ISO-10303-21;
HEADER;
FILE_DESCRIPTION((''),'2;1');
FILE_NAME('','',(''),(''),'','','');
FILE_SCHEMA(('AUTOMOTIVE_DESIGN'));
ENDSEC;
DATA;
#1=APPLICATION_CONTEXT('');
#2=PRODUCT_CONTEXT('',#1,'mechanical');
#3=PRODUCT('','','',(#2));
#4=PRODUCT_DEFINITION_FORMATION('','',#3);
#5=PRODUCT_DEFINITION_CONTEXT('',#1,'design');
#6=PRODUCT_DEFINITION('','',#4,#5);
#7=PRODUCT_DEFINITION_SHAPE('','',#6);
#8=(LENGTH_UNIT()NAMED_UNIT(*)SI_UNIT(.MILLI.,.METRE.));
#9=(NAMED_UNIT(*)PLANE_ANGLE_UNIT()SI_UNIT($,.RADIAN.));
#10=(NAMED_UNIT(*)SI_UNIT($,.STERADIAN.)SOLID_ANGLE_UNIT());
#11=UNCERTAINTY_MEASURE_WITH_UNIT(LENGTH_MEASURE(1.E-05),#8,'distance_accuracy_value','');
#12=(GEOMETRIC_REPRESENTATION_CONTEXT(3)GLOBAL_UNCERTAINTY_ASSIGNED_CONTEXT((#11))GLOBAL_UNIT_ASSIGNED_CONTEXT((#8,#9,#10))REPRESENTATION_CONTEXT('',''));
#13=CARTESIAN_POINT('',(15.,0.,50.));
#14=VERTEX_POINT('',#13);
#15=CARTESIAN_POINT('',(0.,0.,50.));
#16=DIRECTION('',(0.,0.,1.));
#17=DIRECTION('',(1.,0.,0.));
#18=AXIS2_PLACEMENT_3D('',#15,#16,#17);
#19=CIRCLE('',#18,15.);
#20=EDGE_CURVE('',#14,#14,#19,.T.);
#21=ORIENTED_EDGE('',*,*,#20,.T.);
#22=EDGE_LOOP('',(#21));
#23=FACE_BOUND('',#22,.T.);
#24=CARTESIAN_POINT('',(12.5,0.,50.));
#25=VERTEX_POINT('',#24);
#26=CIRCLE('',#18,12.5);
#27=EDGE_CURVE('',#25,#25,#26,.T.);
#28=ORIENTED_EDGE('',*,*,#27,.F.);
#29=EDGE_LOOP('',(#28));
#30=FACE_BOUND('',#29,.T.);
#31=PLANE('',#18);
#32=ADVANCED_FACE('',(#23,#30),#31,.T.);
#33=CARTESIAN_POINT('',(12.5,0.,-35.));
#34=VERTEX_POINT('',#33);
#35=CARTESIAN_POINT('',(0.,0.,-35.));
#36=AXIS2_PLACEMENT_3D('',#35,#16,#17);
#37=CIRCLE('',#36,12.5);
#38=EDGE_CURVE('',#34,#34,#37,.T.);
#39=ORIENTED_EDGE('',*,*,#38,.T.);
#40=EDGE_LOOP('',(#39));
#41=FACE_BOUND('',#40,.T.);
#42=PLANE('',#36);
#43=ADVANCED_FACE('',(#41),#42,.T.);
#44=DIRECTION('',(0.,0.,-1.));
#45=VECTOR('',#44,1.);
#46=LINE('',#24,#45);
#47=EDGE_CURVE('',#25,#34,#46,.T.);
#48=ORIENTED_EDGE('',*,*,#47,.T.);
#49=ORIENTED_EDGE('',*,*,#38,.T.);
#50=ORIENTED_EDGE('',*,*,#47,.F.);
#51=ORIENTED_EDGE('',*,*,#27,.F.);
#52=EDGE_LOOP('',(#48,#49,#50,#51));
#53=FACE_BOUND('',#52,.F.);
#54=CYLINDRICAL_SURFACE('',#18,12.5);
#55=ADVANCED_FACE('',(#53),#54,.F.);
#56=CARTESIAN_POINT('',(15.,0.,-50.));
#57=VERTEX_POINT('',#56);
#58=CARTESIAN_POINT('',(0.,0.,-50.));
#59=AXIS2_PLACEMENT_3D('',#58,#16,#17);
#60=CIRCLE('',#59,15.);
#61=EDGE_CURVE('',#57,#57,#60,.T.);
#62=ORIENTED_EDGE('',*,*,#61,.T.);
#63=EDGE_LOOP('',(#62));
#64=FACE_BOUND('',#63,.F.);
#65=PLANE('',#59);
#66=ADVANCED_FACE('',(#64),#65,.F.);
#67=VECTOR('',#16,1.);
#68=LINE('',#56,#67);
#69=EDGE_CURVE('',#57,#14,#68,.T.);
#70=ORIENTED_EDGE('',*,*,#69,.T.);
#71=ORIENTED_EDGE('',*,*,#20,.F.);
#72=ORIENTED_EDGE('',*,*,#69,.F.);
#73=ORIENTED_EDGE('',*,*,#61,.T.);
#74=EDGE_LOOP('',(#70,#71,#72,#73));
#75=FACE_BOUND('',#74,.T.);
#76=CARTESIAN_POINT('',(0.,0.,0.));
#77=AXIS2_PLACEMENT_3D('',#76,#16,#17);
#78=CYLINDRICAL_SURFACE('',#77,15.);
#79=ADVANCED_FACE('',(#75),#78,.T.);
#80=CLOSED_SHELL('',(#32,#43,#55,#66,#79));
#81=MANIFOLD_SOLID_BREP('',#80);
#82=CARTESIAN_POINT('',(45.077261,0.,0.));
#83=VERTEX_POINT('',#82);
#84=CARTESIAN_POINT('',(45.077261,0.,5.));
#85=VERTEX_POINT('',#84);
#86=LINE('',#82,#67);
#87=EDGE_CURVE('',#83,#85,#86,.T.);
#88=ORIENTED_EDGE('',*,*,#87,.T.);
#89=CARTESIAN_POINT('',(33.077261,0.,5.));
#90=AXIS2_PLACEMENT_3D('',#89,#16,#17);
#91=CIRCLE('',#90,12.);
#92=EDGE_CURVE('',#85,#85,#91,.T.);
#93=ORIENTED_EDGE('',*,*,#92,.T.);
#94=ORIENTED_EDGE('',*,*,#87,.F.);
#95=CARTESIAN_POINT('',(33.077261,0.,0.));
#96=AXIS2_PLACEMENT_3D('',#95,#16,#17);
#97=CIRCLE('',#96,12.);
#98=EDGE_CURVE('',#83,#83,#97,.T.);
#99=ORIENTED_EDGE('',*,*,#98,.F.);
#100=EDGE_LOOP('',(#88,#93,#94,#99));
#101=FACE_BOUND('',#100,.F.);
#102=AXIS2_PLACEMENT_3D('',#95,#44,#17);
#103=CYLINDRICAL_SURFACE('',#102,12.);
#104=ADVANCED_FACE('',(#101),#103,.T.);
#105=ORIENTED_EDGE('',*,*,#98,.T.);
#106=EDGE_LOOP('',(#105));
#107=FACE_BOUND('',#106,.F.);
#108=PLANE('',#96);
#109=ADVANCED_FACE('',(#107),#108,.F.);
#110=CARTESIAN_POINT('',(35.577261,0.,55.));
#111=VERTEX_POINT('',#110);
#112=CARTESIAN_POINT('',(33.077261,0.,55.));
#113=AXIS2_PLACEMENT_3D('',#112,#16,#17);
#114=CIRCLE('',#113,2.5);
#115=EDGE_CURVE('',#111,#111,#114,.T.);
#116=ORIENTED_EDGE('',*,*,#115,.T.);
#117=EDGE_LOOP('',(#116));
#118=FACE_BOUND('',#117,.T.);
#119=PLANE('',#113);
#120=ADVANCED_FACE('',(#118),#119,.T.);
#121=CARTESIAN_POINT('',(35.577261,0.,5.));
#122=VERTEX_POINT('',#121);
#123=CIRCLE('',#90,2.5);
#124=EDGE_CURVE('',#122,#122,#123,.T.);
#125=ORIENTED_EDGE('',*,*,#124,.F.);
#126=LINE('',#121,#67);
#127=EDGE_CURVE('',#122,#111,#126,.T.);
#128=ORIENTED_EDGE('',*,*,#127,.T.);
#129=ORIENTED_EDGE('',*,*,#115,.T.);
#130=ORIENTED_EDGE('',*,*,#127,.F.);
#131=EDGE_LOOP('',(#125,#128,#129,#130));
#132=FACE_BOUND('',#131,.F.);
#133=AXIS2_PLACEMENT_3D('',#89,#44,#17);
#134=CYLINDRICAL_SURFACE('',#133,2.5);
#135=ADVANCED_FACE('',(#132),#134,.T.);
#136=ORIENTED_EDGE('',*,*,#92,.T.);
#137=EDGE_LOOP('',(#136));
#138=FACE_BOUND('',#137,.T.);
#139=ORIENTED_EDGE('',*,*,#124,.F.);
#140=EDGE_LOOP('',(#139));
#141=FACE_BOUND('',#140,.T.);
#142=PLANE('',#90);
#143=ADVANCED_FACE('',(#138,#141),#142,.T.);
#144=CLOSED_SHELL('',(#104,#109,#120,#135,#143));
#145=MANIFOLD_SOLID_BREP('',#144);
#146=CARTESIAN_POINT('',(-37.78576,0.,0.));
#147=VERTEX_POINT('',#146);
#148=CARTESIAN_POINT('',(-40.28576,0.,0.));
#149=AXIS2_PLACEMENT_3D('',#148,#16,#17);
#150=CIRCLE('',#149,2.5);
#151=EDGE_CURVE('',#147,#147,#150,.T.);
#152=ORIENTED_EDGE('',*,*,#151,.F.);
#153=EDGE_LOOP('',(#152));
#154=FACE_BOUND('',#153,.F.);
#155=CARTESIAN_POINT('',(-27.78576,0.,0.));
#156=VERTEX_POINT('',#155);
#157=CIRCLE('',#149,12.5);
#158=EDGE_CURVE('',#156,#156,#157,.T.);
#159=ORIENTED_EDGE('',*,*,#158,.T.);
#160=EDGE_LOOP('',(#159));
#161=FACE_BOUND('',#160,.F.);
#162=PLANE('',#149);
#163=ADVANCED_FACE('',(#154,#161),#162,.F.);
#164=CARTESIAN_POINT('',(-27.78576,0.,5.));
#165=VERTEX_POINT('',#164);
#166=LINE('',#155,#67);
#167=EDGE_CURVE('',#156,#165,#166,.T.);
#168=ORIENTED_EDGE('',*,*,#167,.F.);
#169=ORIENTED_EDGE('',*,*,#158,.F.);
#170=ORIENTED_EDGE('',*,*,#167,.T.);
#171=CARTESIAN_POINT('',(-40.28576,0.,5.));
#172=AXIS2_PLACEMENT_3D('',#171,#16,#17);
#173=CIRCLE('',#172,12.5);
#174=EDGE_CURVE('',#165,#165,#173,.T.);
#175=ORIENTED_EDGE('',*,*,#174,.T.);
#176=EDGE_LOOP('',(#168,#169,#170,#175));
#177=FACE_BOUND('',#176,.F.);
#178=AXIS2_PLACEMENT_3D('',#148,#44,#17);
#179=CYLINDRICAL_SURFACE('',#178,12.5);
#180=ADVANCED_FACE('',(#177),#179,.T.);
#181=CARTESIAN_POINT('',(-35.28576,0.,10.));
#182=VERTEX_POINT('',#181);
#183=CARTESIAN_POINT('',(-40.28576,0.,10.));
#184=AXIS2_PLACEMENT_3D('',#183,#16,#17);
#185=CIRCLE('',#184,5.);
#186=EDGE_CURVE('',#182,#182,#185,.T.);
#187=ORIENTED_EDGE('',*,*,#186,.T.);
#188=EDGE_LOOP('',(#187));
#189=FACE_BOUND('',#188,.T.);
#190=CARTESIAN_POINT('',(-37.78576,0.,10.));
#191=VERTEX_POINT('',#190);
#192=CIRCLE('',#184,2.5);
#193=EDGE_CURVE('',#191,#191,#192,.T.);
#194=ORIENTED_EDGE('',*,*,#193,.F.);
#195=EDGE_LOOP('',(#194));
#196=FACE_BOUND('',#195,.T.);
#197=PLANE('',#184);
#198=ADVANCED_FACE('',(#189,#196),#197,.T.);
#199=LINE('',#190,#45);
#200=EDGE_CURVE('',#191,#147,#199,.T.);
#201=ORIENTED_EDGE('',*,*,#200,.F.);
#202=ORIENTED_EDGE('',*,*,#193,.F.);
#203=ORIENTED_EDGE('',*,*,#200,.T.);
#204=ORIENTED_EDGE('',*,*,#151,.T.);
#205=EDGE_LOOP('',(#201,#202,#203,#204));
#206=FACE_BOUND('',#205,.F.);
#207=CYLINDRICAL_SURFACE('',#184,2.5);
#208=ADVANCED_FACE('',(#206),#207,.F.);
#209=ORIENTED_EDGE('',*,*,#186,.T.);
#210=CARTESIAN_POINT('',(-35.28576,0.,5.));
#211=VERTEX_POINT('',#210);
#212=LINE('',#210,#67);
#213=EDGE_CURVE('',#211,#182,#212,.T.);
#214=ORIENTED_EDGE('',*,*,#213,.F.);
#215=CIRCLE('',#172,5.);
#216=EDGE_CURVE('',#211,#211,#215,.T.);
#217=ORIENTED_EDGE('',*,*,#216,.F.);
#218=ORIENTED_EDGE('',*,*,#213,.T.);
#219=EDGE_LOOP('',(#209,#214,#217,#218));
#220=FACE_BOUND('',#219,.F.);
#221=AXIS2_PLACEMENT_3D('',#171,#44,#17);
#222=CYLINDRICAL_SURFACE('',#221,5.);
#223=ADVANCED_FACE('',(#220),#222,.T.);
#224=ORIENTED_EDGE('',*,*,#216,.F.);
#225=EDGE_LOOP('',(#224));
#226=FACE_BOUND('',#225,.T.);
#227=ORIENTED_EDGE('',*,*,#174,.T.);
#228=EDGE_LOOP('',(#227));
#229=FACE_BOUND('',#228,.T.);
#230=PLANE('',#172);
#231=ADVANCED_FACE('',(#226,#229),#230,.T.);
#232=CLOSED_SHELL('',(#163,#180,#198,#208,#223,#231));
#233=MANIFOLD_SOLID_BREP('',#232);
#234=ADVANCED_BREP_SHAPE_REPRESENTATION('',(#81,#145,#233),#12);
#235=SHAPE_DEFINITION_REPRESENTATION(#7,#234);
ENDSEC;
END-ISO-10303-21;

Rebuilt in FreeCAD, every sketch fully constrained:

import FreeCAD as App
import Part
import Sketcher
from FreeCAD import Vector

doc = App.newDocument("Part")
params = doc.addObject("Spreadsheet::Sheet", "Params")
for row, (alias, value) in enumerate([
    ("sketch1_diameter", "30 mm"),
    ("pad1_length", "100 mm"),
    ("sketch2_diameter", "25 mm"),
    ("pocket1_length", "85 mm"),
    ("sketch3_diameter", "24 mm"),
    ("pad2_length", "5 mm"),
    ("sketch4_diameter", "5 mm"),
    ("pad3_length", "50 mm"),
    ("sketch5_diameter", "25 mm"),
    ("pad4_length", "5 mm"),
    ("sketch6_diameter", "10 mm"),
    ("pad5_length", "5 mm"),
    ("sketch7_diameter", "5 mm"),
    ("pocket2_length", "10 mm"),
], start=1):
    params.set(f"A{row}", alias)
    params.set(f"B{row}", "=" + value)
    params.setAlias(f"B{row}", alias)

body = doc.addObject("PartDesign::Body", "Body")

sketch1 = body.newObject("Sketcher::SketchObject", "Sketch")
sketch1.AttachmentSupport = (doc.getObject("XY_Plane"), [""])
sketch1.MapMode = "FlatFace"
sketch1.addGeometry(Part.Circle(Vector(0, 0, 0), Vector(0, 0, 1), 15), False)
sketch1.addConstraint([
    Sketcher.Constraint("Coincident", 0, 3, -1, 1),
    Sketcher.Constraint("Diameter", 0, 30.0),
])
sketch1.setExpression("Constraints[1]", "Params.sketch1_diameter")
pad1 = body.newObject("PartDesign::Pad", "Pad")
pad1.Profile = sketch1
pad1.setExpression("Length", "Params.pad1_length")
pad1.Midplane = True

sketch2 = body.newObject("Sketcher::SketchObject", "Sketch001")
sketch2.AttachmentSupport = (doc.getObject("XY_Plane"), [""])
sketch2.MapMode = "FlatFace"
sketch2.AttachmentOffset = App.Placement(Vector(0, 0, 50), App.Rotation())
sketch2.addGeometry(Part.Circle(Vector(0, 0, 0), Vector(0, 0, 1), 12), False)
sketch2.addConstraint([
    Sketcher.Constraint("Coincident", 0, 3, -1, 1),
    Sketcher.Constraint("Diameter", 0, 25.0),
])
sketch2.setExpression("Constraints[1]", "Params.sketch2_diameter")
pocket1 = body.newObject("PartDesign::Pocket", "Pocket")
pocket1.Profile = sketch2
pocket1.setExpression("Length", "Params.pocket1_length")
body2 = doc.addObject("PartDesign::Body", "Body001")

sketch3 = body2.newObject("Sketcher::SketchObject", "Sketch002")
sketch3.AttachmentSupport = (doc.getObject("XY_Plane001"), [""])
sketch3.MapMode = "FlatFace"
sketch3.addGeometry(Part.Circle(Vector(33, 0, 0), Vector(0, 0, 1), 12), False)
sketch3.addConstraint([
    Sketcher.Constraint("PointOnObject", 0, 3, -1),
    Sketcher.Constraint("Diameter", 0, 24.0),
    Sketcher.Constraint("DistanceX", -1, 1, 0, 3, 33.077261),
])
sketch3.setExpression("Constraints[1]", "Params.sketch3_diameter")
pad2 = body2.newObject("PartDesign::Pad", "Pad001")
pad2.Profile = sketch3
pad2.setExpression("Length", "Params.pad2_length")

sketch4 = body2.newObject("Sketcher::SketchObject", "Sketch003")
sketch4.AttachmentSupport = (doc.getObject("XY_Plane001"), [""])
sketch4.MapMode = "FlatFace"
sketch4.AttachmentOffset = App.Placement(Vector(0, 0, 5), App.Rotation())
sketch4.addGeometry(Part.Circle(Vector(33.1, 0, 0), Vector(0, 0, 1), 2.5), False)
sketch4.addConstraint([
    Sketcher.Constraint("PointOnObject", 0, 3, -1),
    Sketcher.Constraint("Diameter", 0, 5.0),
    Sketcher.Constraint("DistanceX", -1, 1, 0, 3, 33.077261),
])
sketch4.setExpression("Constraints[1]", "Params.sketch4_diameter")
pad3 = body2.newObject("PartDesign::Pad", "Pad002")
pad3.Profile = sketch4
pad3.setExpression("Length", "Params.pad3_length")
body3 = doc.addObject("PartDesign::Body", "Body002")

sketch5 = body3.newObject("Sketcher::SketchObject", "Sketch004")
sketch5.AttachmentSupport = (doc.getObject("XY_Plane002"), [""])
sketch5.MapMode = "FlatFace"
sketch5.addGeometry(Part.Circle(Vector(-40, 0, 0), Vector(0, 0, 1), 12), False)
sketch5.addConstraint([
    Sketcher.Constraint("PointOnObject", 0, 3, -1),
    Sketcher.Constraint("Diameter", 0, 25.0),
    Sketcher.Constraint("DistanceX", 0, 3, -1, 1, 40.28576),
])
sketch5.setExpression("Constraints[1]", "Params.sketch5_diameter")
pad4 = body3.newObject("PartDesign::Pad", "Pad003")
pad4.Profile = sketch5
pad4.setExpression("Length", "Params.pad4_length")

sketch6 = body3.newObject("Sketcher::SketchObject", "Sketch005")
sketch6.AttachmentSupport = (doc.getObject("XY_Plane002"), [""])
sketch6.MapMode = "FlatFace"
sketch6.AttachmentOffset = App.Placement(Vector(0, 0, 5), App.Rotation())
sketch6.addGeometry(Part.Circle(Vector(-40, 0, 0), Vector(0, 0, 1), 5), False)
sketch6.addConstraint([
    Sketcher.Constraint("PointOnObject", 0, 3, -1),
    Sketcher.Constraint("Diameter", 0, 10.0),
    Sketcher.Constraint("DistanceX", 0, 3, -1, 1, 40.28576),
])
sketch6.setExpression("Constraints[1]", "Params.sketch6_diameter")
pad5 = body3.newObject("PartDesign::Pad", "Pad004")
pad5.Profile = sketch6
pad5.setExpression("Length", "Params.pad5_length")

sketch7 = body3.newObject("Sketcher::SketchObject", "Sketch006")
sketch7.AttachmentSupport = (doc.getObject("XY_Plane002"), [""])
sketch7.MapMode = "FlatFace"
sketch7.AttachmentOffset = App.Placement(Vector(0, 0, 10), App.Rotation())
sketch7.addGeometry(Part.Circle(Vector(-40.3, 0, 0), Vector(0, 0, 1), 2.5), False)
sketch7.addConstraint([
    Sketcher.Constraint("PointOnObject", 0, 3, -1),
    Sketcher.Constraint("Diameter", 0, 5.0),
    Sketcher.Constraint("DistanceX", 0, 3, -1, 1, 40.28576),
])
sketch7.setExpression("Constraints[1]", "Params.sketch7_diameter")
pocket2 = body3.newObject("PartDesign::Pocket", "Pocket001")
pocket2.Profile = sketch7
pocket2.setExpression("Length", "Params.pocket2_length")

doc.recompute()
